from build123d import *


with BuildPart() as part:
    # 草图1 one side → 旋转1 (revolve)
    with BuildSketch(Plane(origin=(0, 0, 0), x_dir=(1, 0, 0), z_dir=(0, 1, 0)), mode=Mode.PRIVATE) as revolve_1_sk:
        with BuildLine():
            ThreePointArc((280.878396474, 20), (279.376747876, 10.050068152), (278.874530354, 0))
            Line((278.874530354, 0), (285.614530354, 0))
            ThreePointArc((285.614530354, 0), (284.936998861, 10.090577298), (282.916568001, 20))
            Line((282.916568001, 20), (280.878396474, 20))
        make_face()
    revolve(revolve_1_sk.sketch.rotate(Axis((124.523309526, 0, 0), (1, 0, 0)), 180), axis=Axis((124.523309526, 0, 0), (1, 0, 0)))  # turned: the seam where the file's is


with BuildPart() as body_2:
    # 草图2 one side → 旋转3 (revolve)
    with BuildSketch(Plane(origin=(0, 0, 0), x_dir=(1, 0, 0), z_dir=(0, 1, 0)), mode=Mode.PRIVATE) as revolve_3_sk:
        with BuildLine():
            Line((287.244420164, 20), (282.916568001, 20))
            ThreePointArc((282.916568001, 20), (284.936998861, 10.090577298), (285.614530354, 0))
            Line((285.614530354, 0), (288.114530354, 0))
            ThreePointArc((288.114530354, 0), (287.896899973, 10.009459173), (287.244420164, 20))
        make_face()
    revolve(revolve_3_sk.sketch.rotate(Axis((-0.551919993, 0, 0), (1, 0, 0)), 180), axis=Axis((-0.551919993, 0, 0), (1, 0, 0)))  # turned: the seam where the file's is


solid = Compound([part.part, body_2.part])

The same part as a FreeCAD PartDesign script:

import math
import FreeCAD as App
import Part
import Sketcher
Q = App.Units.Quantity

doc = App.newDocument("Part")
body = doc.addObject("PartDesign::Body", "Body")

# Sketch on XZ plane
sketch1 = doc.addObject("Sketcher::SketchObject", "Sketch")
body.addObject(sketch1)
sketch1.AttachmentSupport = (doc.XZ_Plane, [""])
sketch1.MapMode = "FlatFace"
sketch1.addGeometry(Part.ArcOfCircle(Part.Circle(App.Vector(379.7, 0, 0), App.Vector(0, 0, 1), 100.8), math.radians(-180), math.radians(-168.56)), False)
sketch1.addGeometry(Part.LineSegment(App.Vector(278.9, 0, 0), App.Vector(285.6, 0, 0)), False)
sketch1.addGeometry(Part.ArcOfCircle(Part.Circle(App.Vector(210.1, 0, 0), App.Vector(0, 0, 1), 75.5), math.radians(-15.37), math.radians(0)), False)
sketch1.addGeometry(Part.LineSegment(App.Vector(282.9, -20, 0), App.Vector(280.9, -20, 0)), False)
sketch1.addConstraint(Sketcher.Constraint("Coincident", 0, 1, 1, 1))
sketch1.addConstraint(Sketcher.Constraint("Coincident", 1, 2, 2, 2))
sketch1.addConstraint(Sketcher.Constraint("Coincident", 2, 1, 3, 1))
sketch1.addConstraint(Sketcher.Constraint("Coincident", 3, 2, 0, 2))
sketch1.addConstraint(Sketcher.Constraint("Horizontal", 1))
sketch1.addConstraint(Sketcher.Constraint("Horizontal", 3))
sketch1.addConstraint(Sketcher.Constraint("PointOnObject", 0, 3, -1))
sketch1.addConstraint(Sketcher.Constraint("PointOnObject", 2, 3, -1))
sketch1.addConstraint(Sketcher.Constraint("PointOnObject", 0, 1, -1))
sketch1.addConstraint(Sketcher.Constraint("DistanceY", 2, 1, -1, 1, Q("20 mm")))
sketch1.addConstraint(Sketcher.Constraint("Radius", 0, Q("100.809 mm")))
sketch1.addConstraint(Sketcher.Constraint("Radius", 2, Q("75.479 mm")))
sketch1.addConstraint(Sketcher.Constraint("DistanceX", 1, 1, 1, 2, Q("6.74 mm")))
sketch1.addConstraint(Sketcher.Constraint("DistanceX", -1, 1, 0, 3, Q("379.68353 mm")))
revolution = doc.addObject("PartDesign::Revolution", "Revolution")
body.addObject(revolution)
revolution.Profile = sketch1
revolution.ReferenceAxis = (sketch1, ["H_Axis"])
revolution.Angle = 360
body2 = doc.addObject("PartDesign::Body", "Body001")

# Sketch on XZ plane
sketch2 = doc.addObject("Sketcher::SketchObject", "Sketch001")
body2.addObject(sketch2)
sketch2.AttachmentSupport = (doc.getObject("XZ_Plane001"), [""])
sketch2.MapMode = "FlatFace"
sketch2.addGeometry(Part.LineSegment(App.Vector(287.2, -20, 0), App.Vector(282.9, -20, 0)), False)
sketch2.addGeometry(Part.ArcOfCircle(Part.Circle(App.Vector(210.1, 0, 0), App.Vector(0, 0, 1), 75.5), math.radians(-15.37), math.radians(0)), False)
sketch2.addGeometry(Part.LineSegment(App.Vector(285.6, 0, 0), App.Vector(288.1, 0, 0)), False)
sketch2.addGeometry(Part.ArcOfCircle(Part.Circle(App.Vector(57.8, 0, 0), App.Vector(0, 0, 1), 230.3), math.radians(-4.98), math.radians(0)), False)
sketch2.addConstraint(Sketcher.Constraint("Coincident", 0, 2, 1, 1))
sketch2.addConstraint(Sketcher.Constraint("Coincident", 1, 2, 2, 1))
sketch2.addConstraint(Sketcher.Constraint("Coincident", 2, 2, 3, 2))
sketch2.addConstraint(Sketcher.Constraint("Coincident", 3, 1, 0, 1))
sketch2.addConstraint(Sketcher.Constraint("Horizontal", 0))
sketch2.addConstraint(Sketcher.Constraint("Horizontal", 2))
sketch2.addConstraint(Sketcher.Constraint("PointOnObject", 1, 3, -1))
sketch2.addConstraint(Sketcher.Constraint("PointOnObject", 3, 3, -1))
sketch2.addConstraint(Sketcher.Constraint("PointOnObject", 1, 2, -1))
sketch2.addConstraint(Sketcher.Constraint("DistanceX", 2, 1, 2, 2, Q("2.5 mm")))
sketch2.addConstraint(Sketcher.Constraint("DistanceY", 0, 2, -1, 1, Q("20 mm")))
sketch2.addConstraint(Sketcher.Constraint("Radius", 1, Q("75.479 mm")))
sketch2.addConstraint(Sketcher.Constraint("Radius", 3, Q("230.291001 mm")))
sketch2.addConstraint(Sketcher.Constraint("DistanceX", -1, 1, 1, 3, Q("210.13553 mm")))
revolution2 = doc.addObject("PartDesign::Revolution", "Revolution001")
body2.addObject(revolution2)
revolution2.Profile = sketch2
revolution2.ReferenceAxis = (sketch2, ["H_Axis"])
revolution2.Angle = 360

doc.recompute()
